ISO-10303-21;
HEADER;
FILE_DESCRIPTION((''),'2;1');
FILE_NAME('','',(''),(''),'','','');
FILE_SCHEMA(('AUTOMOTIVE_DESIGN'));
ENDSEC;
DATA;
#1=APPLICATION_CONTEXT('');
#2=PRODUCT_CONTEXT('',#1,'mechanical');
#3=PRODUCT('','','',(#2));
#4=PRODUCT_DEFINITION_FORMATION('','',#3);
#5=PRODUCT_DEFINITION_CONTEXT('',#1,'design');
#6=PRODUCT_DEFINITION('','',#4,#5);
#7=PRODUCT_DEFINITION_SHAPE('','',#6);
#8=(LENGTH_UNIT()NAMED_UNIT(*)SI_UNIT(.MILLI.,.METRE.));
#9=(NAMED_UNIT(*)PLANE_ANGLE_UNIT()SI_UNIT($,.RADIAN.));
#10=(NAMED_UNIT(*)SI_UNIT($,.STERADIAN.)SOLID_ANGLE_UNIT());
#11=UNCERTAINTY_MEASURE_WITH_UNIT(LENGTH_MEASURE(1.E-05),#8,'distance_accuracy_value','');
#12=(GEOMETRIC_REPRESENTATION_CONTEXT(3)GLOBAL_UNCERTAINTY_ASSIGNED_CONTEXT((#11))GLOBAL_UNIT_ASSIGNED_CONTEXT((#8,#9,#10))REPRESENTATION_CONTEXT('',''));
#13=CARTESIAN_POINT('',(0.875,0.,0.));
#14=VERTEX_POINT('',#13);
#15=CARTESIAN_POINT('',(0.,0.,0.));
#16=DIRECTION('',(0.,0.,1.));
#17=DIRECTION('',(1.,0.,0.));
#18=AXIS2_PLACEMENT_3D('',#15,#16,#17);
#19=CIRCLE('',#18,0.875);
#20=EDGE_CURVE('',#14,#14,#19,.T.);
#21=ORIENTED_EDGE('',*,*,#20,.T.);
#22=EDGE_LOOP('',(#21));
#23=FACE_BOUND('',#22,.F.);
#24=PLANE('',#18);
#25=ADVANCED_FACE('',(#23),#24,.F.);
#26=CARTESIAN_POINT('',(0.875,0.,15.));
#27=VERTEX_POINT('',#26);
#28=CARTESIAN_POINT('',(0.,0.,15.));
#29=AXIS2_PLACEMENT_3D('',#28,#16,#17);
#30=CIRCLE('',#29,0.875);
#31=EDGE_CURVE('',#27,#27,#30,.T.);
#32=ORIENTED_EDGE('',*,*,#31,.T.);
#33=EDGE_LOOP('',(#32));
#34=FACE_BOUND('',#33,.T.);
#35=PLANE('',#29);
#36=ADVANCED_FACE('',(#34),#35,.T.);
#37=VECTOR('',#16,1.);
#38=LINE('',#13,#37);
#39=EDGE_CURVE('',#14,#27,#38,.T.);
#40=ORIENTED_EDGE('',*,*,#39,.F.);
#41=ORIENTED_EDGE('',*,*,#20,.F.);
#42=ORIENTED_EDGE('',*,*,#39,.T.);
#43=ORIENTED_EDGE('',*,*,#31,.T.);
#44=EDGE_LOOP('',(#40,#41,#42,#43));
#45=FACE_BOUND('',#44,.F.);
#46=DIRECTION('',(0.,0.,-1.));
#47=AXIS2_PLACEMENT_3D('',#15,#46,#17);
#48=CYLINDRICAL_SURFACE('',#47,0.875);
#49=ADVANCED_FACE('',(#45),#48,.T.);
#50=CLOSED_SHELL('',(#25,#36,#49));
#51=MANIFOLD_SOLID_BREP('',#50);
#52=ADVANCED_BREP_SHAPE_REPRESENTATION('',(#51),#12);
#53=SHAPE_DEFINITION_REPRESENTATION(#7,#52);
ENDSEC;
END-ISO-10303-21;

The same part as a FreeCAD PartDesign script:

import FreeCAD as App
import Part
import Sketcher

doc = App.newDocument("Part")
body = doc.addObject("PartDesign::Body", "Body")

# Sketch on XY plane
sketch1 = body.newObject("Sketcher::SketchObject", "Sketch")
sketch1.AttachmentSupport = (doc.getObject("XY_Plane"), [""])
sketch1.MapMode = "FlatFace"
sketch1.addGeometry(Part.Circle(App.Vector(0, 0, 0), App.Vector(0, 0, 1), 0.9), False)
sketch1.addConstraint([
    Sketcher.Constraint("Coincident", 0, 3, -1, 1),
    Sketcher.Constraint("Diameter", 0, 1.75),
])
pad1 = body.newObject("PartDesign::Pad", "Pad")
pad1.Profile = sketch1
pad1.Length = 15

doc.recompute()
